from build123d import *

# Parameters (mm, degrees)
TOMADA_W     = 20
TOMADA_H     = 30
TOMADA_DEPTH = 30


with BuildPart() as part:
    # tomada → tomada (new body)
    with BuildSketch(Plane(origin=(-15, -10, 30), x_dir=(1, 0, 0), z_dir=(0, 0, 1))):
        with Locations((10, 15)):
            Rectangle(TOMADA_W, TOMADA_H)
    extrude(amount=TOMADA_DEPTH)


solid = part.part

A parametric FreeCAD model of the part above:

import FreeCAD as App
import Part
import Sketcher

V = App.Vector


def add_polygon(sketch, points):
    """Adds a closed chain of lines whose ends are joined by coincident constraints."""
    first, n = sketch.GeometryCount, len(points)
    for a, b in zip(points, points[1:] + points[:1]):
        sketch.addGeometry(Part.LineSegment(App.Vector(*a, 0), App.Vector(*b, 0)), False)
    for i in range(n):
        sketch.addConstraint(Sketcher.Constraint("Coincident", first + i, 2, first + (i + 1) % n, 1))

doc = App.newDocument("Part")
params = doc.addObject("Spreadsheet::Sheet", "Params")
for row, (alias, value) in enumerate([
    ("sketch1_width", "20 mm"),
    ("sketch1_height", "30 mm"),
    ("pad1_length", "30 mm"),
], start=1):
    params.set(f"A{row}", alias)
    params.set(f"B{row}", "=" + value)
    params.setAlias(f"B{row}", alias)

body = doc.addObject("PartDesign::Body", "Body")

# Sketch on XY plane
sketch1 = body.newObject("Sketcher::SketchObject", "Sketch")
sketch1.AttachmentSupport = (doc.getObject("XY_Plane"), [""])
sketch1.MapMode = "FlatFace"
sketch1.AttachmentOffset = App.Placement(V(0, 0, 30), App.Rotation())
add_polygon(sketch1, [(-15, 20), (-15, -10), (5, -10), (5, 20)])  # lines 0-3
sketch1.addConstraint([
    Sketcher.Constraint("Vertical", 0),
    Sketcher.Constraint("Horizontal", 1),
    Sketcher.Constraint("Vertical", 2),
    Sketcher.Constraint("Horizontal", 3),
    Sketcher.Constraint("DistanceX", 1, 1, 1, 2, 20.0),
    Sketcher.Constraint("DistanceY", 0, 2, 0, 1, 30.0),
    Sketcher.Constraint("DistanceX", 0, 2, -1, 1, 15.0),
    Sketcher.Constraint("DistanceY", 0, 2, -1, 1, 10.0),
])
sketch1.setExpression("Constraints[8]", "Params.sketch1_width")
sketch1.setExpression("Constraints[9]", "Params.sketch1_height")
pad1 = body.newObject("PartDesign::Pad", "Pad")
pad1.Profile = sketch1
pad1.setExpression("Length", "Params.pad1_length")

doc.recompute()
